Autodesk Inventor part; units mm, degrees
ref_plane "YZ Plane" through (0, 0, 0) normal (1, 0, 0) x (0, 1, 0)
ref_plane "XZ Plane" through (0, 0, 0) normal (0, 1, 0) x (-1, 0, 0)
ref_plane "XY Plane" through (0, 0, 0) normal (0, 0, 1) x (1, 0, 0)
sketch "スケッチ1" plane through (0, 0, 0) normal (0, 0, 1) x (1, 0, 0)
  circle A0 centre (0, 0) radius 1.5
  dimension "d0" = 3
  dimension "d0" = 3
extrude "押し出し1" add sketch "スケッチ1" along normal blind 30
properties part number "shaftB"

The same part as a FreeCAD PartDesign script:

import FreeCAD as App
import Part
import Sketcher
Q = App.Units.Quantity

doc = App.newDocument("Part")
body = doc.addObject("PartDesign::Body", "Body")

# Sketch on XY plane
sketch1 = body.newObject("Sketcher::SketchObject", "Sketch")
sketch1.AttachmentSupport = (doc.getObject("XY_Plane"), [""])
sketch1.MapMode = "FlatFace"
sketch1.addGeometry(Part.Circle(App.Vector(0, 0, 0), App.Vector(0, 0, 1), 1.5), False)
sketch1.addConstraint([
    Sketcher.Constraint("Coincident", 0, 3, -1, 1),
    Sketcher.Constraint("Diameter", 0, Q("3 mm")),
])
pad1 = body.newObject("PartDesign::Pad", "Pad")
pad1.Profile = sketch1
pad1.Length = 30

doc.recompute()
